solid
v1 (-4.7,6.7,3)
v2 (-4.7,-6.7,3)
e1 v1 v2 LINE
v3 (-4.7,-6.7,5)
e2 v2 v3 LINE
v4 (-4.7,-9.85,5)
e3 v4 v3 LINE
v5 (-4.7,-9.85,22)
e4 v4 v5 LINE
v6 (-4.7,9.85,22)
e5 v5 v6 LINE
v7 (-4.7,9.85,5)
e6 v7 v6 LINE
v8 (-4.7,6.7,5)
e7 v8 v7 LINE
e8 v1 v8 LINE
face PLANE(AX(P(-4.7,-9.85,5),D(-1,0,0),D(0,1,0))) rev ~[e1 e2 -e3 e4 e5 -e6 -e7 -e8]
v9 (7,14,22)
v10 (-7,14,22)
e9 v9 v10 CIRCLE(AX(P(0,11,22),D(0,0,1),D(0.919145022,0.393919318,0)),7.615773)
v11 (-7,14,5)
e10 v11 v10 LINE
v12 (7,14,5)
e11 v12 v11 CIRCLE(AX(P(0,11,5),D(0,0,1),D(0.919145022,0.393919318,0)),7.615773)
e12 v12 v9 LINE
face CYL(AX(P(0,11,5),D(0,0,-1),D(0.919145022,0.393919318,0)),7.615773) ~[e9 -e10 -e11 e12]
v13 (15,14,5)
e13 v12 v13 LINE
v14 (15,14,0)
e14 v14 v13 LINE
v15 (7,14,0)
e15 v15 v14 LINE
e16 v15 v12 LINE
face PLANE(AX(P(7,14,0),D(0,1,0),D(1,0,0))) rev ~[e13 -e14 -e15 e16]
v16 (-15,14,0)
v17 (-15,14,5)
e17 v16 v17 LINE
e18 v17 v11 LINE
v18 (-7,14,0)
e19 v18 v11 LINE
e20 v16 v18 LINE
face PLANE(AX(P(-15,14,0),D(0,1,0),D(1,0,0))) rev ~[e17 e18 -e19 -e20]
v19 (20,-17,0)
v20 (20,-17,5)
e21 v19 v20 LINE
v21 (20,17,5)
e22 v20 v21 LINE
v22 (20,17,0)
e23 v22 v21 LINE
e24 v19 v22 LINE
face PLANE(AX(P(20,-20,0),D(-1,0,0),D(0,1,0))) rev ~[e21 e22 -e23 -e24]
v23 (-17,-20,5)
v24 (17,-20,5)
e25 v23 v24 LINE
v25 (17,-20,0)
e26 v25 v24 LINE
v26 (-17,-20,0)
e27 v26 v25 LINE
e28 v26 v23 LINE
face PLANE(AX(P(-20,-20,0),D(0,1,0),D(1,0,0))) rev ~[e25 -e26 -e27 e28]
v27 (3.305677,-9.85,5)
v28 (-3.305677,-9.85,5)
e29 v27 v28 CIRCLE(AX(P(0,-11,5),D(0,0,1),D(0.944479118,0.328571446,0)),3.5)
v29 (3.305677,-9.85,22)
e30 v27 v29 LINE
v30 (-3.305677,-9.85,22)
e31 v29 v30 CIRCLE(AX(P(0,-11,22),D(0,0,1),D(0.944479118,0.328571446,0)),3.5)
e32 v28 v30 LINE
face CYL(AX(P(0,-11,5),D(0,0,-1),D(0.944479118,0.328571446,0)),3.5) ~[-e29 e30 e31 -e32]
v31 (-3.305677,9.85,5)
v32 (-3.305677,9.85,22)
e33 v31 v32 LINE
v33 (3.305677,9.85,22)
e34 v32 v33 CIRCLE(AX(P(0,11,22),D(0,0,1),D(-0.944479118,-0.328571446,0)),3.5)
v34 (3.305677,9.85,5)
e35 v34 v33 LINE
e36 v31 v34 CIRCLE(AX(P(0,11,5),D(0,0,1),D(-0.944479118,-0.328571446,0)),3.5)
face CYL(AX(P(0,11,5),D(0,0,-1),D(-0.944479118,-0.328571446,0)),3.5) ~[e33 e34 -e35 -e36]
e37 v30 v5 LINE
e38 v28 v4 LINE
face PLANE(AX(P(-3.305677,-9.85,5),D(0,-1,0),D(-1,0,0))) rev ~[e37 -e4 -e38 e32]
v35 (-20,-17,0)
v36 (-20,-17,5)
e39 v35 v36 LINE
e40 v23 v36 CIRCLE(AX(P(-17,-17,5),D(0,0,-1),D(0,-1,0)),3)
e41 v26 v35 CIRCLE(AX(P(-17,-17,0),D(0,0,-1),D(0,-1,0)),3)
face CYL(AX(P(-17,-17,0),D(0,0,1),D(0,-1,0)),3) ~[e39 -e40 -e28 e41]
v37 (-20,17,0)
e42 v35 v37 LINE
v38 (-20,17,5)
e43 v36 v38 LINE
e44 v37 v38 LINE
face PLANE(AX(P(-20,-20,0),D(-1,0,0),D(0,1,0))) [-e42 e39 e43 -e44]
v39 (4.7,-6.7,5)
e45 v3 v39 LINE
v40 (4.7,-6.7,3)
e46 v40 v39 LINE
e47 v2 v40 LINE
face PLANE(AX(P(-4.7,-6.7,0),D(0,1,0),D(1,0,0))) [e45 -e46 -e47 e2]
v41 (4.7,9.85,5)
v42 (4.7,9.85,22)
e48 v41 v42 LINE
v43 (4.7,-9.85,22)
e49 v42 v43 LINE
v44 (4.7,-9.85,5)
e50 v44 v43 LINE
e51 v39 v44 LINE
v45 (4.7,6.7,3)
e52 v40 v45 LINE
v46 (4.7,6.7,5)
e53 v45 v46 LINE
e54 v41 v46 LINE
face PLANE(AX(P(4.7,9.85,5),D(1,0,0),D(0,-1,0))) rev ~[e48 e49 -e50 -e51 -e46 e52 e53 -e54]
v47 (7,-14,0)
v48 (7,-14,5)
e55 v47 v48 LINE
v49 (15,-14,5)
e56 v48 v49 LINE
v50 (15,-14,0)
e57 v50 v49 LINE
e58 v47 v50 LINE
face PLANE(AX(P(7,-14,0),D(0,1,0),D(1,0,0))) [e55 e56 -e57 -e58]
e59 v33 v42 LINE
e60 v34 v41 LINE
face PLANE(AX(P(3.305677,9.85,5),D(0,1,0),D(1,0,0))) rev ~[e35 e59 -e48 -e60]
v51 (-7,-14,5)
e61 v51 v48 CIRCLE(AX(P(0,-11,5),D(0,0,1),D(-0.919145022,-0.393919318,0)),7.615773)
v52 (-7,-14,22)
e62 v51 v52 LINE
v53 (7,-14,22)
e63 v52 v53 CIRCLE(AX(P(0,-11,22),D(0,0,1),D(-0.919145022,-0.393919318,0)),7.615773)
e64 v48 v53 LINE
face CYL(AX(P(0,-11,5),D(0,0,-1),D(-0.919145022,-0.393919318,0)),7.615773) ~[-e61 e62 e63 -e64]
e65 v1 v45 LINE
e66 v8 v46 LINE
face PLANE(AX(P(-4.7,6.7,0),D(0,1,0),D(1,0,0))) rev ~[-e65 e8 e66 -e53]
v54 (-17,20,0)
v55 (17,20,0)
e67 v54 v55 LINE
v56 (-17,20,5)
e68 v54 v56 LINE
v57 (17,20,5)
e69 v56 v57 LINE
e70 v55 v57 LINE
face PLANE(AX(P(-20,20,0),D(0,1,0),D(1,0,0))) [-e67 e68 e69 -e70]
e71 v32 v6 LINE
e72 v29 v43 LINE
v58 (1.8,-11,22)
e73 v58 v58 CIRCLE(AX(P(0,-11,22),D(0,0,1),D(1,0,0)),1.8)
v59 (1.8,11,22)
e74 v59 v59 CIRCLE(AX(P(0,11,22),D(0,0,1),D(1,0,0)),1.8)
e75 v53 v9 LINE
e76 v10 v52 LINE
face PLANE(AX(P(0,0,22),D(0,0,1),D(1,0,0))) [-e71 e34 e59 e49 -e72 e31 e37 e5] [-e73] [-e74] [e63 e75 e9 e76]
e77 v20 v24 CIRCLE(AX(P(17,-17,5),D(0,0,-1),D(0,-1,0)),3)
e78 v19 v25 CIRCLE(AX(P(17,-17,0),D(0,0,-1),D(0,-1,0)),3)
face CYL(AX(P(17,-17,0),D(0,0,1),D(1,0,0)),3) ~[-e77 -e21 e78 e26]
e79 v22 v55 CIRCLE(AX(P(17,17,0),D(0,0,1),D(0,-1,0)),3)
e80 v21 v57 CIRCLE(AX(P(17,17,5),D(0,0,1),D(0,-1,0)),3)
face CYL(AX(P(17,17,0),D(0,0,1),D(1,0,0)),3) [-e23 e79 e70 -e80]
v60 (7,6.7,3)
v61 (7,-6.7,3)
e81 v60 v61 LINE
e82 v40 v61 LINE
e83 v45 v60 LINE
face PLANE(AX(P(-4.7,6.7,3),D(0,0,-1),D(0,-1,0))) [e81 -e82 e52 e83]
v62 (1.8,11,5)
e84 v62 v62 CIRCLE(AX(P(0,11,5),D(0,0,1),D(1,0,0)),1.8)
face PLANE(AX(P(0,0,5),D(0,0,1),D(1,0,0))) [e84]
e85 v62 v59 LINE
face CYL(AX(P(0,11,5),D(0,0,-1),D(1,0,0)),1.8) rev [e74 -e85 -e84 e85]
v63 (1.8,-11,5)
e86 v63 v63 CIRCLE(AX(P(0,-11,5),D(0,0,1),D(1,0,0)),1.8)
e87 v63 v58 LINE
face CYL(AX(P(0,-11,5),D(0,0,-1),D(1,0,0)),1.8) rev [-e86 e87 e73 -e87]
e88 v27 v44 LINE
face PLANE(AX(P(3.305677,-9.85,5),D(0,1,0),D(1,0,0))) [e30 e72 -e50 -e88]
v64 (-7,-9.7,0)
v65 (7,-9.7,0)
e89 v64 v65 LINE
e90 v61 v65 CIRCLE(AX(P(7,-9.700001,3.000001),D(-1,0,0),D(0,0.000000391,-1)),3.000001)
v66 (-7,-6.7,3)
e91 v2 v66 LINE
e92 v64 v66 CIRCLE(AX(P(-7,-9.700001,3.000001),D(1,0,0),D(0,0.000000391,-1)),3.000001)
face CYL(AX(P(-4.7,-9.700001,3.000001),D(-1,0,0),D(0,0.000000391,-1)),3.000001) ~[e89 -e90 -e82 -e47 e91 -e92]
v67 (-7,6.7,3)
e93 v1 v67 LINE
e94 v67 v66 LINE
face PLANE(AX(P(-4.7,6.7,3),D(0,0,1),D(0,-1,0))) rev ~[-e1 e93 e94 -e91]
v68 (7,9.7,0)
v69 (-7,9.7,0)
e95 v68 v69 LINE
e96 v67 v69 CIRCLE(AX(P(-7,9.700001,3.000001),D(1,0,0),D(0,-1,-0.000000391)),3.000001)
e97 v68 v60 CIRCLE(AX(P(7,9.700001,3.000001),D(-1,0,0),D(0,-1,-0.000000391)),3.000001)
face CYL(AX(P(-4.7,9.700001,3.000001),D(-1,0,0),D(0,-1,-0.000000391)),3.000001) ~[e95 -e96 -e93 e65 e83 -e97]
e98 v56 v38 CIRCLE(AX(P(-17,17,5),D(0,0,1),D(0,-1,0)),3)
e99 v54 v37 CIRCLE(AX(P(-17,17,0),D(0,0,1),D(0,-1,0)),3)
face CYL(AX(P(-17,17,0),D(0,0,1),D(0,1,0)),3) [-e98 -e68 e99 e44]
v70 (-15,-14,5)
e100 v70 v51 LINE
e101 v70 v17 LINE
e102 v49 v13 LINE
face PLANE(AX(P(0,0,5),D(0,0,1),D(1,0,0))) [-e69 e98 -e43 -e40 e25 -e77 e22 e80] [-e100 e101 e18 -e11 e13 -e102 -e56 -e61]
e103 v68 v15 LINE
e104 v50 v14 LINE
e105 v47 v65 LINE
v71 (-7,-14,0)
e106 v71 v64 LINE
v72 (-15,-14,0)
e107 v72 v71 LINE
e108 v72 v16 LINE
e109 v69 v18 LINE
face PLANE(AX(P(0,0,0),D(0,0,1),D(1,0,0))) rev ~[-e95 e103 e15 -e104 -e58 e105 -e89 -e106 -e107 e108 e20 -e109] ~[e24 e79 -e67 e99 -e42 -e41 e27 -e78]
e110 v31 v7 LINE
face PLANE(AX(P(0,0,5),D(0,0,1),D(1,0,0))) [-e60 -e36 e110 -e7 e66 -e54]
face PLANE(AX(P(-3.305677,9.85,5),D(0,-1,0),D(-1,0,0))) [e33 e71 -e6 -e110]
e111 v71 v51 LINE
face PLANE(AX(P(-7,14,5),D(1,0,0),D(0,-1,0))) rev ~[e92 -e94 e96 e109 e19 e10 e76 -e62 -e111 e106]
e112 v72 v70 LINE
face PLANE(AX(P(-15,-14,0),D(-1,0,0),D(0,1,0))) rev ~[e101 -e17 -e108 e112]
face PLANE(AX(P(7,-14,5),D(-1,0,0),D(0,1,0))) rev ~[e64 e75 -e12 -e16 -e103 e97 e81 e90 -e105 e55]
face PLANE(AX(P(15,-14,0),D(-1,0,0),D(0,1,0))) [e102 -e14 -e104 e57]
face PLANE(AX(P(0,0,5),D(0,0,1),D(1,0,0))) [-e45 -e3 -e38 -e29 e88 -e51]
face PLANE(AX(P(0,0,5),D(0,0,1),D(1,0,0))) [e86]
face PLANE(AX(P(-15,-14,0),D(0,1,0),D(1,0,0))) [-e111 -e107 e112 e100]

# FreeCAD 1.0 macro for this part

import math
import FreeCAD as App
import Part
import Sketcher


def edges_at(feature, points):
    """Names of the edges that pass closest to the given points."""
    edges = feature.Shape.Edges
    near = lambda p: min(range(len(edges)), key=lambda i: edges[i].distToShape(Part.Vertex(*p))[0])
    return sorted({f"Edge{near(p) + 1}" for p in points})


def add_polygon(sketch, points):
    """Adds a closed chain of lines whose ends are joined by coincident constraints."""
    first, n = sketch.GeometryCount, len(points)
    for a, b in zip(points, points[1:] + points[:1]):
        sketch.addGeometry(Part.LineSegment(App.Vector(*a, 0), App.Vector(*b, 0)), False)
    for i in range(n):
        sketch.addConstraint(Sketcher.Constraint("Coincident", first + i, 2, first + (i + 1) % n, 1))

doc = App.newDocument("Part")
body = doc.addObject("PartDesign::Body", "Body")

sketch1 = doc.addObject("Sketcher::SketchObject", "Sketch")
body.addObject(sketch1)
sketch1.AttachmentSupport = (doc.XY_Plane, [""])
sketch1.MapMode = "FlatFace"
add_polygon(sketch1, [(-20, 20), (-20, -20), (20, -20), (20, 20)])
add_polygon(sketch1, [(-7, -14), (-15, -14), (-15, 14), (-7, 14)])
add_polygon(sketch1, [(5, -7), (-5, -7), (-5, 7), (5, 7)])
add_polygon(sketch1, [(15, -14), (7, -14), (7, 14), (15, 14)])
sketch1.addConstraint([
    Sketcher.Constraint("Vertical", 0),
    Sketcher.Constraint("Horizontal", 1),
    Sketcher.Constraint("Vertical", 2),
    Sketcher.Constraint("Horizontal", 3),
    Sketcher.Constraint("Horizontal", 4),
    Sketcher.Constraint("Vertical", 5),
    Sketcher.Constraint("Horizontal", 6),
    Sketcher.Constraint("Vertical", 7),
    Sketcher.Constraint("Horizontal", 8),
    Sketcher.Constraint("Vertical", 9),
    Sketcher.Constraint("Horizontal", 10),
    Sketcher.Constraint("Vertical", 11),
    Sketcher.Constraint("Horizontal", 12),
    Sketcher.Constraint("Vertical", 13),
    Sketcher.Constraint("Horizontal", 14),
    Sketcher.Constraint("Vertical", 15),
    Sketcher.Constraint("Symmetric", 0, 2, 2, 2, -1, 1),
    Sketcher.Constraint("Symmetric", 8, 2, 10, 2, -1, 1),
    Sketcher.Constraint("Symmetric", 6, 2, 12, 2, -1, 1),
    Sketcher.Constraint("Symmetric", 4, 2, 14, 2, -1, 1),
    Sketcher.Constraint("Horizontal", 7, 2, 12, 2),
    Sketcher.Constraint("Equal", 3, 0),
    Sketcher.Constraint("DistanceX", 1, 1, 1, 2, 40.0),
    Sketcher.Constraint("DistanceX", 4, 2, 4, 1, 8.0),
    Sketcher.Constraint("DistanceY", 5, 1, 5, 2, 28.0),
    Sketcher.Constraint("DistanceX", 8, 2, 8, 1, 9.4),
    Sketcher.Constraint("DistanceY", 9, 1, 9, 2, 13.4),
    Sketcher.Constraint("DistanceX", 4, 2, -1, 1, 15.0),
])
pad1 = doc.addObject("PartDesign::Pad", "Pad")
body.addObject(pad1)
pad1.Profile = sketch1
pad1.Length = 5

sketch2 = doc.addObject("Sketcher::SketchObject", "Sketch001")
body.addObject(sketch2)
sketch2.AttachmentSupport = (doc.XY_Plane, [""])
sketch2.MapMode = "FlatFace"
sketch2.AttachmentOffset = App.Placement(App.Vector(0, 0, 5), App.Rotation())
sketch2.addGeometry([
    Part.LineSegment(App.Vector(7, -14, 0), App.Vector(7, 14, 0)),
    Part.ArcOfCircle(Part.Circle(App.Vector(0, 11, 0), App.Vector(0, 0, 1), 7.6), math.radians(23), math.radians(157)),
    Part.LineSegment(App.Vector(-7, 14, 0), App.Vector(-7, -14, 0)),
    Part.ArcOfCircle(Part.Circle(App.Vector(0, -11, 0), App.Vector(0, 0, 1), 7.6), math.radians(-157), math.radians(-23)),
    Part.Circle(App.Vector(0, -11, 0), App.Vector(0, 0, 1), 1.8),
    Part.LineSegment(App.Vector(-4.7, 9.8, 0), App.Vector(-3.3, 9.8, 0)),
    Part.ArcOfCircle(Part.Circle(App.Vector(0, 11, 0), App.Vector(0, 0, 1), 3.5), math.radians(-161), math.radians(-19)),
    Part.LineSegment(App.Vector(3.3, 9.8, 0), App.Vector(4.7, 9.8, 0)),
    Part.LineSegment(App.Vector(4.7, 9.8, 0), App.Vector(4.7, -9.8, 0)),
    Part.LineSegment(App.Vector(4.7, -9.8, 0), App.Vector(3.3, -9.8, 0)),
    Part.ArcOfCircle(Part.Circle(App.Vector(0, -11, 0), App.Vector(0, 0, 1), 3.5), math.radians(19), math.radians(161)),
    Part.LineSegment(App.Vector(-3.3, -9.8, 0), App.Vector(-4.7, -9.8, 0)),
    Part.LineSegment(App.Vector(-4.7, -9.8, 0), App.Vector(-4.7, 9.8, 0)),
    Part.Circle(App.Vector(0, 11, 0), App.Vector(0, 0, 1), 1.8),
], False)
sketch2.addConstraint([
    Sketcher.Constraint("Coincident", 0, 2, 1, 1),
    Sketcher.Constraint("Coincident", 1, 2, 2, 1),
    Sketcher.Constraint("Coincident", 2, 2, 3, 1),
    Sketcher.Constraint("Coincident", 3, 2, 0, 1),
    Sketcher.Constraint("Coincident", 5, 2, 6, 1),
    Sketcher.Constraint("Coincident", 6, 2, 7, 1),
    Sketcher.Constraint("Coincident", 7, 2, 8, 1),
    Sketcher.Constraint("Coincident", 8, 2, 9, 1),
    Sketcher.Constraint("Coincident", 9, 2, 10, 1),
    Sketcher.Constraint("Coincident", 10, 2, 11, 1),
    Sketcher.Constraint("Coincident", 11, 2, 12, 1),
    Sketcher.Constraint("Coincident", 12, 2, 5, 1),
    Sketcher.Constraint("Vertical", 0),
    Sketcher.Constraint("Vertical", 2),
    Sketcher.Constraint("Horizontal", 5),
    Sketcher.Constraint("Horizontal", 7),
    Sketcher.Constraint("Vertical", 8),
    Sketcher.Constraint("Horizontal", 9),
    Sketcher.Constraint("Horizontal", 11),
    Sketcher.Constraint("Vertical", 12),
    Sketcher.Constraint("Coincident", 4, 3, 3, 3),
    Sketcher.Constraint("Coincident", 6, 3, 1, 3),
    Sketcher.Constraint("Coincident", 10, 3, 3, 3),
    Sketcher.Constraint("Coincident", 13, 3, 1, 3),
    Sketcher.Constraint("Equal", 1, 3),
    Sketcher.Constraint("Equal", 6, 10),
    Sketcher.Constraint("Equal", 4, 13),
    Sketcher.Constraint("Symmetric", 1, 3, 3, 3, -1, 1),
    Sketcher.Constraint("Symmetric", 7, 2, 11, 2, -1, 1),
    Sketcher.Constraint("Symmetric", 0, 2, 1, 2, -2),
    Sketcher.Constraint("Horizontal", 5, 2, 6, 2),
    Sketcher.Constraint("Horizontal", 9, 2, 10, 2),
    Sketcher.Constraint("Diameter", 4, 3.6),
    Sketcher.Constraint("Radius", 6, 3.5),
    Sketcher.Constraint("DistanceY", 0, 1, 0, 2, 28.0),
    Sketcher.Constraint("DistanceY", 8, 2, 8, 1, 19.7),
    Sketcher.Constraint("DistanceY", -1, 1, 1, 3, 11.0),
    Sketcher.Constraint("DistanceX", -1, 1, 0, 2, 7.0),
    Sketcher.Constraint("DistanceX", -1, 1, 7, 2, 4.7),
])
pad2 = doc.addObject("PartDesign::Pad", "Pad001")
body.addObject(pad2)
pad2.Profile = sketch2
pad2.Length = 17

sketch3 = doc.addObject("Sketcher::SketchObject", "Sketch002")
body.addObject(sketch3)
sketch3.AttachmentSupport = (doc.YZ_Plane, [""])
sketch3.MapMode = "FlatFace"
sketch3.AttachmentOffset = App.Placement(App.Vector(0, 0, -4.7), App.Rotation())
sketch3.addGeometry([
    Part.ArcOfCircle(Part.Circle(App.Vector(-9.7, 3, 0), App.Vector(0, 0, 1), 3), math.radians(-90), math.radians(0)),
    Part.LineSegment(App.Vector(-9.7, 0, 0), App.Vector(9.7, 0, 0)),
    Part.ArcOfCircle(Part.Circle(App.Vector(9.7, 3, 0), App.Vector(0, 0, 1), 3), math.radians(-180), math.radians(-90)),
    Part.LineSegment(App.Vector(6.7, 3, 0), App.Vector(-6.7, 3, 0)),
], False)
sketch3.addConstraint([
    Sketcher.Constraint("Tangent", 0, 1, 1, 1),
    Sketcher.Constraint("Tangent", 1, 2, 2, 2),
    Sketcher.Constraint("Coincident", 2, 1, 3, 1),
    Sketcher.Constraint("Coincident", 3, 2, 0, 2),
    Sketcher.Constraint("Horizontal", 1),
    Sketcher.Constraint("Horizontal", 3),
    Sketcher.Constraint("Equal", 0, 2),
    Sketcher.Constraint("Symmetric", 0, 1, 1, 2, -1, 1),
    Sketcher.Constraint("Horizontal", 0, 3, 2, 1),
    Sketcher.Constraint("Radius", 0, 3.000001),
    Sketcher.Constraint("DistanceX", 1, 1, 1, 2, 19.4),
])
pocket1 = doc.addObject("PartDesign::Pocket", "Pocket")
body.addObject(pocket1)
pocket1.Profile = sketch3
pocket1.Type = "TwoLengths"
pocket1.Length = 5
pocket1.Length2 = 15
doc.recompute()

fillet = doc.addObject("PartDesign::Fillet", "Fillet")
body.addObject(fillet)
fillet.Base = (pocket1, edges_at(pocket1, [
    (20, 20, 2.5),
    (-20, 20, 2.5),
    (-20, -20, 2.5),
    (20, -20, 2.5),
]))
fillet.Radius = 3

doc.recompute()
